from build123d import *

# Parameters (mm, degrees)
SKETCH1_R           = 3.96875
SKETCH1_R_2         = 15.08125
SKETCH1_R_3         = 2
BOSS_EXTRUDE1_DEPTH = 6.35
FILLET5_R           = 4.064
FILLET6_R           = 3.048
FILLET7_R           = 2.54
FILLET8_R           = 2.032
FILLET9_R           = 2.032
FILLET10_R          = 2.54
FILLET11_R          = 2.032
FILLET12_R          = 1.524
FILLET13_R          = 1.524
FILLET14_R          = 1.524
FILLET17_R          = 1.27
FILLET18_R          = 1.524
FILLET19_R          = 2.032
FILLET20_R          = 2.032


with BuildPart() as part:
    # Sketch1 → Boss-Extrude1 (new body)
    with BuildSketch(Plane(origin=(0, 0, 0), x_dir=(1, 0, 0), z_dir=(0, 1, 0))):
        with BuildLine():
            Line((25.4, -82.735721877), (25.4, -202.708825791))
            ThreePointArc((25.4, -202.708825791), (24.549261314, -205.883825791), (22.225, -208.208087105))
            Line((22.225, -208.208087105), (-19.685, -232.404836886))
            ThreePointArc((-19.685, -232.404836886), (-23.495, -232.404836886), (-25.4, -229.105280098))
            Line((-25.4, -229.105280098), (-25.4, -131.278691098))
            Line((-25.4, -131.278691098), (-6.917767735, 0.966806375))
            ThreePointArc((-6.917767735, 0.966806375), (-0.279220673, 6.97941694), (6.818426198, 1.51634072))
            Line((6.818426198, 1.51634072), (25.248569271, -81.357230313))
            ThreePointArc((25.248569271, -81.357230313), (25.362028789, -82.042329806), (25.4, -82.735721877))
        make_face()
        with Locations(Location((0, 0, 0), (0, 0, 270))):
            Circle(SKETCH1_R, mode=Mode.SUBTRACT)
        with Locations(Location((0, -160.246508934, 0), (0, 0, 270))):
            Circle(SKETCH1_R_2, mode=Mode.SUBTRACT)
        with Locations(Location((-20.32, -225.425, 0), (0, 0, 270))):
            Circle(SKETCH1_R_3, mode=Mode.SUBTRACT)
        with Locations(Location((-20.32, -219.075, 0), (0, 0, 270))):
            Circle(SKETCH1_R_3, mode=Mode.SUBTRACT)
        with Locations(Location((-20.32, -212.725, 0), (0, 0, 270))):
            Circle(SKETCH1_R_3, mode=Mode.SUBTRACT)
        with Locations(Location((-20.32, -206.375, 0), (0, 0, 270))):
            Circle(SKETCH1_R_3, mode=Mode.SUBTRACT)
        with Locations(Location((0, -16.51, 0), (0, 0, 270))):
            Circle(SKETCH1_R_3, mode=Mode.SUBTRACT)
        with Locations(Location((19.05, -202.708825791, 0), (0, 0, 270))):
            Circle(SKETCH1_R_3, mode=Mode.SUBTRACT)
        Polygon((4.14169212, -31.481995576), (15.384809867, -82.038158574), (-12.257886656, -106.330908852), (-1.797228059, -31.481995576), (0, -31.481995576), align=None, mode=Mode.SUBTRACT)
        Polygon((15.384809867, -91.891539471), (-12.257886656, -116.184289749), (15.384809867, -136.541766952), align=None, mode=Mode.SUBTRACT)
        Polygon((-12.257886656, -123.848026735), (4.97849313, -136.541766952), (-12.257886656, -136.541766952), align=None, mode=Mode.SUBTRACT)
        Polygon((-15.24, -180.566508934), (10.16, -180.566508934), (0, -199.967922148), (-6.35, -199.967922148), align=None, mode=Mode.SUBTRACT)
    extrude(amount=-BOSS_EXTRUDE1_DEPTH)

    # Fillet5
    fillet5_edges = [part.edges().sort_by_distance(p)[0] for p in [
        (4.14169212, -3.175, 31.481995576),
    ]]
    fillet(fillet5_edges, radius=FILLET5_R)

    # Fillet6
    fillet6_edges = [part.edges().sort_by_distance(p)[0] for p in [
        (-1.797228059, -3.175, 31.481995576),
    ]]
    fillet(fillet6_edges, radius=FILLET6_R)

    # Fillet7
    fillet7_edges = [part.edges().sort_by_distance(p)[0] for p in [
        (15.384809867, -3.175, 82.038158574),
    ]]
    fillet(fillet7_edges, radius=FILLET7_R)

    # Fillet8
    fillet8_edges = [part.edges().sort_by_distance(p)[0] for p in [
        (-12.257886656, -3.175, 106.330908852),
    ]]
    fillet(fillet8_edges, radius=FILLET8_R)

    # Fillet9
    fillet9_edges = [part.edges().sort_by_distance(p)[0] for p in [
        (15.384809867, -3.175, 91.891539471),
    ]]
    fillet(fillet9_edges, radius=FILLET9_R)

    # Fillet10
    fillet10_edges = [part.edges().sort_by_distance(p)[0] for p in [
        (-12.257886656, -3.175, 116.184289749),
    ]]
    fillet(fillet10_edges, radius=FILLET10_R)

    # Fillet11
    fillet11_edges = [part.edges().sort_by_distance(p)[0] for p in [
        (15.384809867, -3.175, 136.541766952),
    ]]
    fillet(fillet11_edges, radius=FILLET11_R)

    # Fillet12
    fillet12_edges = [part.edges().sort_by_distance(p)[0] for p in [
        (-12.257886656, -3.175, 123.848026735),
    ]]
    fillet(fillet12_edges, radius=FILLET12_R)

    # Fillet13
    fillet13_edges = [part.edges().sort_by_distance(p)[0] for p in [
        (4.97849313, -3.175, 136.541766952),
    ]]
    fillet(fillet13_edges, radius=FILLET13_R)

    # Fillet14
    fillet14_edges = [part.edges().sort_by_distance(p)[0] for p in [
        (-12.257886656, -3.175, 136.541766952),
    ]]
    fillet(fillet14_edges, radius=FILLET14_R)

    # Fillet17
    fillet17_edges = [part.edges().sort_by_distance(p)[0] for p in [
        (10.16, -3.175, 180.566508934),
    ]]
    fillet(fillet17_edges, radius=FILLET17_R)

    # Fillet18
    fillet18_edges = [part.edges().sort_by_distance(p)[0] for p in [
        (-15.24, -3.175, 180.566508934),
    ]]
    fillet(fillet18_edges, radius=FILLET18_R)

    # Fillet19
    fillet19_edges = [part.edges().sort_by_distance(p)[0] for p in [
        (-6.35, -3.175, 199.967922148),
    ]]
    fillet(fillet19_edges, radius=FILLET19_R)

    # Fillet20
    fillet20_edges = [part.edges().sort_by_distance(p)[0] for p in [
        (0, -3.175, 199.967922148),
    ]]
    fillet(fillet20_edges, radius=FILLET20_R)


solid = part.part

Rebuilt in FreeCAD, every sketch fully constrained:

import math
import FreeCAD as App
import Part
import Sketcher
Q = App.Units.Quantity


def edges_at(feature, points):
    """Names of the edges that pass closest to the given points."""
    edges = feature.Shape.Edges
    near = lambda p: min(range(len(edges)), key=lambda i: edges[i].distToShape(Part.Vertex(*p))[0])
    return sorted({f"Edge{near(p) + 1}" for p in points})

doc = App.newDocument("Part")
body = doc.addObject("PartDesign::Body", "Body")

sketch1 = doc.addObject("Sketcher::SketchObject", "Sketch")
body.addObject(sketch1)
sketch1.AttachmentSupport = (doc.XZ_Plane, [""])
sketch1.MapMode = "FlatFace"
sketch1.addGeometry([
    Part.LineSegment(App.Vector(25.4, 202.7, 0), App.Vector(25.4, 82.7, 0)),
    Part.ArcOfCircle(Part.Circle(App.Vector(19, 82.7, 0), App.Vector(0, 0, 1), 6.4), math.radians(-12.54), math.radians(0)),
    Part.LineSegment(App.Vector(25.2, 81.4, 0), App.Vector(6.8, -1.5, 0)),
    Part.ArcOfCircle(Part.Circle(App.Vector(0, 0, 0), App.Vector(0, 0, 1), 7), math.radians(-172), math.radians(-13)),
    Part.LineSegment(App.Vector(-6.9, -1, 0), App.Vector(-25.4, 131.3, 0)),
    Part.LineSegment(App.Vector(-25.4, 131.3, 0), App.Vector(-25.4, 229.1, 0)),
    Part.ArcOfCircle(Part.Circle(App.Vector(-21.6, 229.1, 0), App.Vector(0, 0, 1), 3.8), math.radians(60), math.radians(180)),
    Part.LineSegment(App.Vector(-19.7, 232.4, 0), App.Vector(22.2, 208.2, 0)),
    Part.ArcOfCircle(Part.Circle(App.Vector(19.1, 202.7, 0), App.Vector(0, 0, 1), 6.3), math.radians(0), math.radians(60)),
    Part.Circle(App.Vector(19.1, 202.7, 0), App.Vector(0, 0, 1), 2),
    Part.Circle(App.Vector(0, 160.2, 0), App.Vector(0, 0, 1), 15.1),
    Part.LineSegment(App.Vector(15.4, 91.9, 0), App.Vector(15.4, 136.5, 0)),
    Part.LineSegment(App.Vector(15.4, 136.5, 0), App.Vector(-12.3, 116.2, 0)),
    Part.LineSegment(App.Vector(-12.3, 116.2, 0), App.Vector(15.4, 91.9, 0)),
    Part.LineSegment(App.Vector(-15.2, 180.6, 0), App.Vector(10.2, 180.6, 0)),
    Part.LineSegment(App.Vector(10.2, 180.6, 0), App.Vector(0, 200, 0)),
    Part.LineSegment(App.Vector(0, 200, 0), App.Vector(-6.3, 200, 0)),
    Part.LineSegment(App.Vector(-6.3, 200, 0), App.Vector(-15.2, 180.6, 0)),
    Part.Circle(App.Vector(-20.3, 225.4, 0), App.Vector(0, 0, 1), 2),
    Part.Circle(App.Vector(-20.3, 219.1, 0), App.Vector(0, 0, 1), 2),
    Part.Circle(App.Vector(-20.3, 212.7, 0), App.Vector(0, 0, 1), 2),
    Part.Circle(App.Vector(-20.3, 206.4, 0), App.Vector(0, 0, 1), 2),
    Part.LineSegment(App.Vector(-12.3, 123.8, 0), App.Vector(5, 136.5, 0)),
    Part.LineSegment(App.Vector(5, 136.5, 0), App.Vector(-12.3, 136.5, 0)),
    Part.LineSegment(App.Vector(-12.3, 136.5, 0), App.Vector(-12.3, 123.8, 0)),
    Part.LineSegment(App.Vector(4.1, 31.5, 0), App.Vector(15.4, 82, 0)),
    Part.LineSegment(App.Vector(15.4, 82, 0), App.Vector(-12.3, 106.3, 0)),
    Part.LineSegment(App.Vector(-12.3, 106.3, 0), App.Vector(-1.8, 31.5, 0)),
    Part.LineSegment(App.Vector(-1.8, 31.5, 0), App.Vector(4.1, 31.5, 0)),
    Part.Circle(App.Vector(0, 16.5, 0), App.Vector(0, 0, 1), 2),
    Part.Circle(App.Vector(0, 0, 0), App.Vector(0, 0, 1), 4),
], False)
sketch1.addConstraint([
    Sketcher.Constraint("Tangent", 0, 2, 1, 2),
    Sketcher.Constraint("Tangent", 1, 1, 2, 1),
    Sketcher.Constraint("Tangent", 2, 2, 3, 2),
    Sketcher.Constraint("Tangent", 3, 1, 4, 1),
    Sketcher.Constraint("Coincident", 4, 2, 5, 1),
    Sketcher.Constraint("Tangent", 5, 2, 6, 2),
    Sketcher.Constraint("Tangent", 6, 1, 7, 1),
    Sketcher.Constraint("Tangent", 7, 2, 8, 2),
    Sketcher.Constraint("Tangent", 8, 1, 0, 1),
    Sketcher.Constraint("Coincident", 11, 2, 12, 1),
    Sketcher.Constraint("Coincident", 12, 2, 13, 1),
    Sketcher.Constraint("Coincident", 13, 2, 11, 1),
    Sketcher.Constraint("Coincident", 14, 2, 15, 1),
    Sketcher.Constraint("Coincident", 15, 2, 16, 1),
    Sketcher.Constraint("Coincident", 16, 2, 17, 1),
    Sketcher.Constraint("Coincident", 17, 2, 14, 1),
    Sketcher.Constraint("Coincident", 22, 2, 23, 1),
    Sketcher.Constraint("Coincident", 23, 2, 24, 1),
    Sketcher.Constraint("Coincident", 24, 2, 22, 1),
    Sketcher.Constraint("Coincident", 25, 2, 26, 1),
    Sketcher.Constraint("Coincident", 26, 2, 27, 1),
    Sketcher.Constraint("Coincident", 27, 2, 28, 1),
    Sketcher.Constraint("Coincident", 28, 2, 25, 1),
    Sketcher.Constraint("Vertical", 0),
    Sketcher.Constraint("Vertical", 5),
    Sketcher.Constraint("Vertical", 11),
    Sketcher.Constraint("Horizontal", 14),
    Sketcher.Constraint("Horizontal", 16),
    Sketcher.Constraint("Horizontal", 23),
    Sketcher.Constraint("Vertical", 24),
    Sketcher.Constraint("Horizontal", 28),
    Sketcher.Constraint("Coincident", 3, 3, -1, 1),
    Sketcher.Constraint("Coincident", 30, 3, -1, 1),
    Sketcher.Constraint("Coincident", 9, 3, 8, 3),
    Sketcher.Constraint("Equal", 1, 8),
    Sketcher.Constraint("Equal", 9, 18),
    Sketcher.Constraint("Equal", 18, 19),
    Sketcher.Constraint("Equal", 19, 20),
    Sketcher.Constraint("Equal", 20, 21),
    Sketcher.Constraint("Equal", 21, 29),
    Sketcher.Constraint("PointOnObject", 10, 3, -2),
    Sketcher.Constraint("PointOnObject", 29, 3, -2),
    Sketcher.Constraint("PointOnObject", 15, 2, -2),
    Sketcher.Constraint("Parallel", 12, 22),
    Sketcher.Constraint("Parallel", 2, 25),
    Sketcher.Constraint("Parallel", 13, 26),
    Sketcher.Constraint("Parallel", 4, 27),
    Sketcher.Constraint("Horizontal", 11, 2, 22, 2),
    Sketcher.Constraint("Vertical", 18, 3, 19, 3),
    Sketcher.Constraint("Vertical", 19, 3, 20, 3),
    Sketcher.Constraint("Vertical", 20, 3, 21, 3),
    Sketcher.Constraint("Vertical", 12, 2, 23, 2),
    Sketcher.Constraint("Vertical", 13, 2, 25, 2),
    Sketcher.Constraint("Vertical", 24, 2, 26, 2),
    Sketcher.Constraint("DistanceX", 14, 1, 14, 2, Q("1 in")),
    Sketcher.Constraint("Radius", 1, Q("0.25 in")),
    Sketcher.Constraint("Radius", 6, Q("0.15 in")),
    Sketcher.Constraint("Diameter", 10, Q("1.1875 in")),
    Sketcher.Constraint("Diameter", 30, Q("0.3125 in")),
    Sketcher.Constraint("DistanceX", -1, 1, 0, 2, Q("1 in")),
    Sketcher.Constraint("DistanceX", 4, 2, -1, 1, Q("1 in")),
    Sketcher.Constraint("Angle", 7, Q("-30 deg")),
    Sketcher.Constraint("Radius", 3, Q("0.275 in")),
    Sketcher.Constraint("DistanceX", 16, 2, 16, 1, Q("0.25 in")),
    Sketcher.Constraint("DistanceX", 18, 3, -1, 1, Q("0.8 in")),
    Sketcher.Constraint("DistanceX", -1, 1, 14, 2, Q("0.4 in")),
    Sketcher.Constraint("DistanceY", 20, 3, 18, 3, Q("0.5 in")),
    Sketcher.Constraint("DistanceY", 21, 3, 19, 3, Q("0.5 in")),
    Sketcher.Constraint("DistanceY", 10, 3, 14, 2, Q("0.8 in")),
    Sketcher.Constraint("Diameter", 9, Q("4 mm")),
    Sketcher.Constraint("DistanceY", -1, 1, 29, 3, Q("0.65 in")),
    Sketcher.Constraint("DistanceY", 19, 3, 18, 3, Q("0.25 in")),
    Sketcher.Constraint("DistanceY", -1, 1, 18, 3, Q("8.875 in")),
    Sketcher.Constraint("DistanceX", 23, 2, 23, 1, Q("17.23638 mm")),
    Sketcher.Constraint("DistanceX", 28, 1, 28, 2, Q("5.93892 mm")),
    Sketcher.Constraint("DistanceY", 5, 1, 5, 2, Q("97.826589 mm")),
    Sketcher.Constraint("DistanceY", 24, 2, 24, 1, Q("12.69374 mm")),
    Sketcher.Constraint("DistanceY", 12, 2, 4, 2, Q("15.094401 mm")),
    Sketcher.Constraint("DistanceY", 3, 1, 27, 2, Q("32.448802 mm")),
    Sketcher.Constraint("Distance", 2, Q("84.898168 mm")),
    Sketcher.Constraint("Distance", 12, Q("34.329951 mm")),
    Sketcher.Constraint("DistanceY", 0, 2, 0, 1, Q("119.973104 mm")),
    Sketcher.Constraint("DistanceY", 11, 1, 11, 2, Q("44.650227 mm")),
    Sketcher.Constraint("DistanceY", -1, 1, 10, 3, Q("160.246509 mm")),
    Sketcher.Constraint("DistanceX", -1, 1, 11, 2, Q("15.38481 mm")),
    Sketcher.Constraint("Distance", 15, Q("21.900695 mm")),
])
pad1 = doc.addObject("PartDesign::Pad", "Pad")
body.addObject(pad1)
pad1.Profile = sketch1
pad1.Length = Q("0.25 in")
doc.recompute()

fillet = doc.addObject("PartDesign::Fillet", "Fillet")
body.addObject(fillet)
fillet.Base = (pad1, edges_at(pad1, [(4.142, -3.175, 31.482)]))
fillet.Radius = Q("0.16 in")
doc.recompute()

fillet2 = doc.addObject("PartDesign::Fillet", "Fillet001")
body.addObject(fillet2)
fillet2.Base = (fillet, edges_at(fillet, [(-1.797, -3.175, 31.482)]))
fillet2.Radius = Q("0.12 in")
doc.recompute()

fillet3 = doc.addObject("PartDesign::Fillet", "Fillet002")
body.addObject(fillet3)
fillet3.Base = (fillet2, edges_at(fillet2, [(15.385, -3.175, 82.038)]))
fillet3.Radius = Q("0.1 in")
doc.recompute()

fillet4 = doc.addObject("PartDesign::Fillet", "Fillet003")
body.addObject(fillet4)
fillet4.Base = (fillet3, edges_at(fillet3, [(-12.258, -3.175, 106.331)]))
fillet4.Radius = Q("0.08 in")
doc.recompute()

fillet5 = doc.addObject("PartDesign::Fillet", "Fillet004")
body.addObject(fillet5)
fillet5.Base = (fillet4, edges_at(fillet4, [(15.385, -3.175, 91.892)]))
fillet5.Radius = Q("0.08 in")
doc.recompute()

fillet6 = doc.addObject("PartDesign::Fillet", "Fillet005")
body.addObject(fillet6)
fillet6.Base = (fillet5, edges_at(fillet5, [(-12.258, -3.175, 116.184)]))
fillet6.Radius = Q("0.1 in")
doc.recompute()

fillet7 = doc.addObject("PartDesign::Fillet", "Fillet006")
body.addObject(fillet7)
fillet7.Base = (fillet6, edges_at(fillet6, [(15.385, -3.175, 136.542)]))
fillet7.Radius = Q("0.08 in")
doc.recompute()

fillet8 = doc.addObject("PartDesign::Fillet", "Fillet007")
body.addObject(fillet8)
fillet8.Base = (fillet7, edges_at(fillet7, [(-12.258, -3.175, 123.848)]))
fillet8.Radius = Q("0.06 in")
doc.recompute()

fillet9 = doc.addObject("PartDesign::Fillet", "Fillet008")
body.addObject(fillet9)
fillet9.Base = (fillet8, edges_at(fillet8, [(4.978, -3.175, 136.542)]))
fillet9.Radius = Q("0.06 in")
doc.recompute()

fillet10 = doc.addObject("PartDesign::Fillet", "Fillet009")
body.addObject(fillet10)
fillet10.Base = (fillet9, edges_at(fillet9, [(-12.258, -3.175, 136.542)]))
fillet10.Radius = Q("0.06 in")
doc.recompute()

fillet11 = doc.addObject("PartDesign::Fillet", "Fillet010")
body.addObject(fillet11)
fillet11.Base = (fillet10, edges_at(fillet10, [(10.16, -3.175, 180.567)]))
fillet11.Radius = Q("0.05 in")
doc.recompute()

fillet12 = doc.addObject("PartDesign::Fillet", "Fillet011")
body.addObject(fillet12)
fillet12.Base = (fillet11, edges_at(fillet11, [(-15.24, -3.175, 180.567)]))
fillet12.Radius = Q("0.06 in")
doc.recompute()

fillet13 = doc.addObject("PartDesign::Fillet", "Fillet012")
body.addObject(fillet13)
fillet13.Base = (fillet12, edges_at(fillet12, [(-6.35, -3.175, 199.968)]))
fillet13.Radius = Q("0.08 in")
doc.recompute()

fillet14 = doc.addObject("PartDesign::Fillet", "Fillet013")
body.addObject(fillet14)
fillet14.Base = (fillet13, edges_at(fillet13, [(0, -3.175, 199.968)]))
fillet14.Radius = Q("0.08 in")

doc.recompute()
